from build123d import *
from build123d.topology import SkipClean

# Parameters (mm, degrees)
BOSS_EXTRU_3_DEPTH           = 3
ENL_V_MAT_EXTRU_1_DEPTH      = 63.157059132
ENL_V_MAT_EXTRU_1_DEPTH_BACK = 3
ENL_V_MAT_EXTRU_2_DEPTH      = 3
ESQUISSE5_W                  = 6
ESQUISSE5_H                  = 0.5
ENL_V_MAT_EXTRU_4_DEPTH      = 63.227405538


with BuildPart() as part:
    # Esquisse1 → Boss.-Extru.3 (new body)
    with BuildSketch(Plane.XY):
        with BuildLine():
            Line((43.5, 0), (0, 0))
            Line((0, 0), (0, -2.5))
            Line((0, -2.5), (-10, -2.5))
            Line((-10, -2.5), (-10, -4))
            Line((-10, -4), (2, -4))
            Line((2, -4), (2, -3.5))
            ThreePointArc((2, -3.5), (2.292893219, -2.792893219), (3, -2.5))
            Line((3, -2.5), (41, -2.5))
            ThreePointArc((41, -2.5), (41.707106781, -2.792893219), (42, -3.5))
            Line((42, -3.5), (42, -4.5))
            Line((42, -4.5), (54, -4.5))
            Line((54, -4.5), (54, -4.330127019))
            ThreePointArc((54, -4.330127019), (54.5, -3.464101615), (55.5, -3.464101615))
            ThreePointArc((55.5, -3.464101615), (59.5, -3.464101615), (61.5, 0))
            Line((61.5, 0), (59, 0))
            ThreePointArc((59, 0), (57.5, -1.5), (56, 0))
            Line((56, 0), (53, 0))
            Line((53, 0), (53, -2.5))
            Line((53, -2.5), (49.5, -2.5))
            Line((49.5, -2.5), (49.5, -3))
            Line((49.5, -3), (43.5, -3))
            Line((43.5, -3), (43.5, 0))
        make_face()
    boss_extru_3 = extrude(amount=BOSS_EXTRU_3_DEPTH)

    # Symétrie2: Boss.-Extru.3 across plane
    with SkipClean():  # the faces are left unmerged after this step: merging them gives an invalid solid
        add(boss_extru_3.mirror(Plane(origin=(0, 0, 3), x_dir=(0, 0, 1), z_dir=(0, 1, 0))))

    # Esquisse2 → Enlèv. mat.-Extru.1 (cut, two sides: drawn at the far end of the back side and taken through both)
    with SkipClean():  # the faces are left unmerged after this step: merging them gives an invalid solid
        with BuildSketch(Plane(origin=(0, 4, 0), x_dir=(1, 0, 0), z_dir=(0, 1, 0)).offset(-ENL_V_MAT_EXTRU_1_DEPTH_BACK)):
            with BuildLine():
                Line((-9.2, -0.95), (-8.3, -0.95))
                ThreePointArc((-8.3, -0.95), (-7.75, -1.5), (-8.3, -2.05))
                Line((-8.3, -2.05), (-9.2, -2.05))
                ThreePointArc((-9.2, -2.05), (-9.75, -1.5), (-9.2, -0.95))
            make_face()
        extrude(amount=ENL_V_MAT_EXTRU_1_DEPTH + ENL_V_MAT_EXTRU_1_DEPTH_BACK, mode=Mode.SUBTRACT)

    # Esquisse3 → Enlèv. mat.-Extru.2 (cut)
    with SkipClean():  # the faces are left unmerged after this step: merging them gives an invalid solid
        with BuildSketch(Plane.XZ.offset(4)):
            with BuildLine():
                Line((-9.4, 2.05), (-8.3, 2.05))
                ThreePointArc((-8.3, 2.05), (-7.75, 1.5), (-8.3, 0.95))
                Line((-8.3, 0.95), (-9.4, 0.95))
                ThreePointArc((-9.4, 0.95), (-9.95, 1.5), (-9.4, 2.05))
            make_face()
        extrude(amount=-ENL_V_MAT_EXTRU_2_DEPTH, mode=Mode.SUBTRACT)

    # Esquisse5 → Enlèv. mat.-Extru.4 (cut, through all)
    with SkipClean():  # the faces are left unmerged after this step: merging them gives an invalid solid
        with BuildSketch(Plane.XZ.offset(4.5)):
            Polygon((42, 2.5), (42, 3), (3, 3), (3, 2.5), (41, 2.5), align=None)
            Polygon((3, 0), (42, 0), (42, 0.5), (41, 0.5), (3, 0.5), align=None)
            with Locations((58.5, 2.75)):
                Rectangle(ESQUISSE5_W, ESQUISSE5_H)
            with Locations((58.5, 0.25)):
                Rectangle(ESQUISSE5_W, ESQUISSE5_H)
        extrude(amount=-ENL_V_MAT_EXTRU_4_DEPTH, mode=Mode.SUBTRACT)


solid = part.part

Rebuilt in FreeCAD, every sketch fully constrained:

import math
import FreeCAD as App
import Part
import Sketcher

V = App.Vector
Q = App.Units.Quantity


def add_polygon(sketch, points):
    """Adds a closed chain of lines whose ends are joined by coincident constraints."""
    first, n = sketch.GeometryCount, len(points)
    for a, b in zip(points, points[1:] + points[:1]):
        sketch.addGeometry(Part.LineSegment(App.Vector(*a, 0), App.Vector(*b, 0)), False)
    for i in range(n):
        sketch.addConstraint(Sketcher.Constraint("Coincident", first + i, 2, first + (i + 1) % n, 1))

doc = App.newDocument("Part")
body = doc.addObject("PartDesign::Body", "Body")

# Sketch on XY plane
sketch1 = doc.addObject("Sketcher::SketchObject", "Sketch")
body.addObject(sketch1)
sketch1.AttachmentSupport = (doc.XY_Plane, [""])
sketch1.MapMode = "FlatFace"
sketch1.addGeometry([
    Part.LineSegment(V(43.5, 0, 0), V(0, 0, 0)),  # 0
    Part.LineSegment(V(0, 0, 0), V(0, -2.5, 0)),  # 1
    Part.LineSegment(V(0, -2.5, 0), V(-10, -2.5, 0)),  # 2
    Part.LineSegment(V(-10, -2.5, 0), V(-10, -4, 0)),  # 3
    Part.LineSegment(V(-10, -4, 0), V(2, -4, 0)),  # 4
    Part.LineSegment(V(2, -4, 0), V(2, -3.5, 0)),  # 5
    Part.ArcOfCircle(Part.Circle(V(3, -3.5, 0), V(0, 0, 1), 1), math.radians(90), math.radians(180)),  # 6
    Part.LineSegment(V(3, -2.5, 0), V(41, -2.5, 0)),  # 7
    Part.ArcOfCircle(Part.Circle(V(41, -3.5, 0), V(0, 0, 1), 1), math.radians(0), math.radians(90)),  # 8
    Part.LineSegment(V(42, -3.5, 0), V(42, -4.5, 0)),  # 9
    Part.LineSegment(V(42, -4.5, 0), V(54, -4.5, 0)),  # 10
    Part.LineSegment(V(54, -4.5, 0), V(54, -4.33, 0)),  # 11
    Part.ArcOfCircle(Part.Circle(V(55, -4.33, 0), V(0, 0, 1), 1), math.radians(60), math.radians(180)),  # 12
    Part.ArcOfCircle(Part.Circle(V(57.5, 0, 0), V(0, 0, 1), 4), math.radians(-120), math.radians(0)),  # 13
    Part.LineSegment(V(61.5, 0, 0), V(59, 0, 0)),  # 14
    Part.ArcOfCircle(Part.Circle(V(57.5, 0, 0), V(0, 0, 1), 1.5), math.radians(180), math.radians(360)),  # 15
    Part.LineSegment(V(56, 0, 0), V(53, 0, 0)),  # 16
    Part.LineSegment(V(53, 0, 0), V(53, -2.5, 0)),  # 17
    Part.LineSegment(V(53, -2.5, 0), V(49.5, -2.5, 0)),  # 18
    Part.LineSegment(V(49.5, -2.5, 0), V(49.5, -3, 0)),  # 19
    Part.LineSegment(V(49.5, -3, 0), V(43.5, -3, 0)),  # 20
    Part.LineSegment(V(43.5, -3, 0), V(43.5, 0, 0)),  # 21
], False)
sketch1.addConstraint([
    Sketcher.Constraint("Coincident", 0, 2, 1, 1),
    Sketcher.Constraint("Coincident", 1, 2, 2, 1),
    Sketcher.Constraint("Coincident", 2, 2, 3, 1),
    Sketcher.Constraint("Coincident", 3, 2, 4, 1),
    Sketcher.Constraint("Coincident", 4, 2, 5, 1),
    Sketcher.Constraint("Tangent", 5, 2, 6, 2),
    Sketcher.Constraint("Tangent", 6, 1, 7, 1),
    Sketcher.Constraint("Tangent", 7, 2, 8, 2),
    Sketcher.Constraint("Tangent", 8, 1, 9, 1),
    Sketcher.Constraint("Coincident", 9, 2, 10, 1),
    Sketcher.Constraint("Coincident", 10, 2, 11, 1),
    Sketcher.Constraint("Tangent", 11, 2, 12, 2),
    Sketcher.Constraint("Tangent", 12, 1, 13, 1),
    Sketcher.Constraint("Coincident", 13, 2, 14, 1),
    Sketcher.Constraint("Coincident", 14, 2, 15, 2),
    Sketcher.Constraint("Coincident", 15, 1, 16, 1),
    Sketcher.Constraint("Coincident", 16, 2, 17, 1),
    Sketcher.Constraint("Coincident", 17, 2, 18, 1),
    Sketcher.Constraint("Coincident", 18, 2, 19, 1),
    Sketcher.Constraint("Coincident", 19, 2, 20, 1),
    Sketcher.Constraint("Coincident", 20, 2, 21, 1),
    Sketcher.Constraint("Coincident", 21, 2, 0, 1),
    Sketcher.Constraint("Horizontal", 0),
    Sketcher.Constraint("Vertical", 1),
    Sketcher.Constraint("Horizontal", 2),
    Sketcher.Constraint("Vertical", 3),
    Sketcher.Constraint("Horizontal", 4),
    Sketcher.Constraint("Vertical", 5),
    Sketcher.Constraint("Horizontal", 7),
    Sketcher.Constraint("Vertical", 9),
    Sketcher.Constraint("Horizontal", 10),
    Sketcher.Constraint("Vertical", 11),
    Sketcher.Constraint("Horizontal", 14),
    Sketcher.Constraint("Horizontal", 16),
    Sketcher.Constraint("Vertical", 17),
    Sketcher.Constraint("Horizontal", 18),
    Sketcher.Constraint("Vertical", 19),
    Sketcher.Constraint("Horizontal", 20),
    Sketcher.Constraint("Vertical", 21),
    Sketcher.Constraint("Coincident", 0, 2, -1, 1),
    Sketcher.Constraint("Coincident", 15, 3, 13, 3),
    Sketcher.Constraint("Equal", 6, 8),
    Sketcher.Constraint("Equal", 8, 12),
    Sketcher.Constraint("PointOnObject", 13, 3, -1),
    Sketcher.Constraint("PointOnObject", 13, 2, -1),
    Sketcher.Constraint("PointOnObject", 15, 1, -1),
    Sketcher.Constraint("Horizontal", 2, 2, 6, 1),
    Sketcher.Constraint("Horizontal", 7, 2, 17, 2),
    Sketcher.Constraint("Equal", 4, 10),
    Sketcher.Constraint("Equal", 14, 1),
    Sketcher.Constraint("Equal", 5, 19),
    Sketcher.Constraint("Equal", 16, 21),
    Sketcher.Constraint("Radius", 6, Q("1 mm")),
    Sketcher.Constraint("Radius", 13, Q("4 mm")),
    Sketcher.Constraint("Radius", 15, Q("1.5 mm")),
    Sketcher.Constraint("DistanceX", 2, 2, 2, 1, Q("10 mm")),
    Sketcher.Constraint("DistanceX", 4, 1, 4, 2, Q("12 mm")),
    Sketcher.Constraint("DistanceX", 7, 1, 7, 2, Q("38 mm")),
    Sketcher.Constraint("DistanceX", 16, 2, 16, 1, Q("3 mm")),
    Sketcher.Constraint("DistanceX", 20, 2, 20, 1, Q("6 mm")),
    Sketcher.Constraint("DistanceY", 9, 2, 9, 1, Q("1 mm")),
    Sketcher.Constraint("DistanceX", 0, 2, 0, 1, Q("43.5 mm")),
    Sketcher.Constraint("DistanceX", 18, 2, 18, 1, Q("3.5 mm")),
])
pad1 = doc.addObject("PartDesign::Pad", "Pad")
body.addObject(pad1)
pad1.Profile = sketch1
pad1.Length = 3
doc.recompute()

mirrored = doc.addObject("PartDesign::Mirrored", "Mirrored")
body.addObject(mirrored)
mirrored.Originals = [pad1]
mirrored.MirrorPlane = (doc.XZ_Plane, [""])
body.Tip = mirrored

# Sketch on XZ plane
sketch2 = doc.addObject("Sketcher::SketchObject", "Sketch001")
body.addObject(sketch2)
sketch2.AttachmentSupport = (doc.XZ_Plane, [""])
sketch2.MapMode = "FlatFace"
sketch2.AttachmentOffset = App.Placement(V(0, 0, -4), App.Rotation())
sketch2.addGeometry([
    Part.LineSegment(V(-8.3, 0.9, 0), V(-9.2, 0.9, 0)),
    Part.ArcOfCircle(Part.Circle(V(-9.2, 1.5, 0), V(0, 0, 1), 0.6), math.radians(90), math.radians(270)),
    Part.LineSegment(V(-9.2, 2, 0), V(-8.3, 2, 0)),
    Part.ArcOfCircle(Part.Circle(V(-8.3, 1.5, 0), V(0, 0, 1), 0.6), math.radians(-90), math.radians(90)),
], False)
sketch2.addConstraint([
    Sketcher.Constraint("Tangent", 0, 2, 1, 2),
    Sketcher.Constraint("Tangent", 1, 1, 2, 1),
    Sketcher.Constraint("Tangent", 2, 2, 3, 2),
    Sketcher.Constraint("Tangent", 3, 1, 0, 1),
    Sketcher.Constraint("Horizontal", 0),
    Sketcher.Constraint("Horizontal", 2),
    Sketcher.Constraint("Radius", 1, Q("0.55 mm")),
    Sketcher.Constraint("DistanceX", 0, 2, 0, 1, Q("0.9 mm")),
    Sketcher.Constraint("DistanceX", 1, 3, -1, 1, Q("9.2 mm")),
    Sketcher.Constraint("DistanceY", -1, 1, 1, 3, Q("1.5 mm")),
])
pocket1 = doc.addObject("PartDesign::Pocket", "Pocket")
body.addObject(pocket1)
pocket1.Profile = sketch2
pocket1.Type = "TwoLengths"
pocket1.Length = 63.157059
pocket1.Length2 = 3

# Sketch on XZ plane
sketch3 = doc.addObject("Sketcher::SketchObject", "Sketch002")
body.addObject(sketch3)
sketch3.AttachmentSupport = (doc.XZ_Plane, [""])
sketch3.MapMode = "FlatFace"
sketch3.AttachmentOffset = App.Placement(V(0, 0, 4), App.Rotation())
sketch3.addGeometry([
    Part.LineSegment(V(-8.3, 2, 0), V(-9.4, 2, 0)),
    Part.ArcOfCircle(Part.Circle(V(-9.4, 1.5, 0), V(0, 0, 1), 0.6), math.radians(90), math.radians(270)),
    Part.LineSegment(V(-9.4, 0.9, 0), V(-8.3, 0.9, 0)),
    Part.ArcOfCircle(Part.Circle(V(-8.3, 1.5, 0), V(0, 0, 1), 0.6), math.radians(-90), math.radians(90)),
], False)
sketch3.addConstraint([
    Sketcher.Constraint("Tangent", 0, 2, 1, 1),
    Sketcher.Constraint("Tangent", 1, 2, 2, 1),
    Sketcher.Constraint("Tangent", 2, 2, 3, 1),
    Sketcher.Constraint("Tangent", 3, 2, 0, 1),
    Sketcher.Constraint("Horizontal", 0),
    Sketcher.Constraint("Horizontal", 2),
    Sketcher.Constraint("Radius", 1, Q("0.55 mm")),
    Sketcher.Constraint("DistanceX", 0, 2, 0, 1, Q("1.1 mm")),
    Sketcher.Constraint("DistanceX", 1, 3, -1, 1, Q("9.4 mm")),
    Sketcher.Constraint("DistanceY", -1, 1, 1, 3, Q("1.5 mm")),
])
pocket2 = doc.addObject("PartDesign::Pocket", "Pocket001")
body.addObject(pocket2)
pocket2.Profile = sketch3
pocket2.Length = 3

# Sketch on XZ plane
sketch4 = doc.addObject("Sketcher::SketchObject", "Sketch003")
body.addObject(sketch4)
sketch4.AttachmentSupport = (doc.XZ_Plane, [""])
sketch4.MapMode = "FlatFace"
sketch4.AttachmentOffset = App.Placement(V(0, 0, 4.5), App.Rotation())
add_polygon(sketch4, [(42, 2.5), (42, 3), (3, 3), (3, 2.5)])  # lines 0-3
add_polygon(sketch4, [(3, 0), (42, 0), (42, 0.5), (41, 0.5), (3, 0.5)])  # lines 4-8
add_polygon(sketch4, [(55.5, 3), (55.5, 2.5), (61.5, 2.5), (61.5, 3)])  # lines 9-12
add_polygon(sketch4, [(55.5, 0.5), (55.5, 0), (61.5, 0), (61.5, 0.5)])  # lines 13-16
sketch4.addConstraint([
    Sketcher.Constraint("Vertical", 0),
    Sketcher.Constraint("Horizontal", 1),
    Sketcher.Constraint("Vertical", 2),
    Sketcher.Constraint("Horizontal", 3),
    Sketcher.Constraint("Horizontal", 4),
    Sketcher.Constraint("Vertical", 5),
    Sketcher.Constraint("Horizontal", 6),
    Sketcher.Constraint("Horizontal", 7),
    Sketcher.Constraint("Vertical", 8),
    Sketcher.Constraint("Vertical", 9),
    Sketcher.Constraint("Horizontal", 10),
    Sketcher.Constraint("Vertical", 11),
    Sketcher.Constraint("Horizontal", 12),
    Sketcher.Constraint("Vertical", 13),
    Sketcher.Constraint("Horizontal", 14),
    Sketcher.Constraint("Vertical", 15),
    Sketcher.Constraint("Horizontal", 16),
    Sketcher.Constraint("PointOnObject", 4, 2, -1),
    Sketcher.Constraint("PointOnObject", 13, 2, -1),
    Sketcher.Constraint("Horizontal", 3, 2, 9, 2),
    Sketcher.Constraint("Horizontal", 1, 2, 11, 2),
    Sketcher.Constraint("Horizontal", 7, 2, 15, 2),
    Sketcher.Constraint("Vertical", 3, 2, 4, 2),
    Sketcher.Constraint("Vertical", 2, 2, 7, 2),
    Sketcher.Constraint("Vertical", 12, 2, 13, 2),
    Sketcher.Constraint("Vertical", 11, 2, 14, 2),
    Sketcher.Constraint("Equal", 2, 5),
    Sketcher.Constraint("DistanceX", 1, 2, 1, 1, Q("39 mm")),
    Sketcher.Constraint("DistanceX", 6, 2, 6, 1, Q("1 mm")),
    Sketcher.Constraint("DistanceX", 10, 1, 10, 2, Q("6 mm")),
    Sketcher.Constraint("DistanceY", 0, 1, 0, 2, Q("0.5 mm")),
    Sketcher.Constraint("DistanceX", -1, 1, 0, 2, Q("42 mm")),
    Sketcher.Constraint("DistanceY", -1, 1, 0, 2, Q("3 mm")),
    Sketcher.Constraint("DistanceX", -1, 1, 9, 2, Q("55.5 mm")),
])
pocket3 = doc.addObject("PartDesign::Pocket", "Pocket002")
body.addObject(pocket3)
pocket3.Profile = sketch4
pocket3.Type = "ThroughAll"

doc.recompute()
